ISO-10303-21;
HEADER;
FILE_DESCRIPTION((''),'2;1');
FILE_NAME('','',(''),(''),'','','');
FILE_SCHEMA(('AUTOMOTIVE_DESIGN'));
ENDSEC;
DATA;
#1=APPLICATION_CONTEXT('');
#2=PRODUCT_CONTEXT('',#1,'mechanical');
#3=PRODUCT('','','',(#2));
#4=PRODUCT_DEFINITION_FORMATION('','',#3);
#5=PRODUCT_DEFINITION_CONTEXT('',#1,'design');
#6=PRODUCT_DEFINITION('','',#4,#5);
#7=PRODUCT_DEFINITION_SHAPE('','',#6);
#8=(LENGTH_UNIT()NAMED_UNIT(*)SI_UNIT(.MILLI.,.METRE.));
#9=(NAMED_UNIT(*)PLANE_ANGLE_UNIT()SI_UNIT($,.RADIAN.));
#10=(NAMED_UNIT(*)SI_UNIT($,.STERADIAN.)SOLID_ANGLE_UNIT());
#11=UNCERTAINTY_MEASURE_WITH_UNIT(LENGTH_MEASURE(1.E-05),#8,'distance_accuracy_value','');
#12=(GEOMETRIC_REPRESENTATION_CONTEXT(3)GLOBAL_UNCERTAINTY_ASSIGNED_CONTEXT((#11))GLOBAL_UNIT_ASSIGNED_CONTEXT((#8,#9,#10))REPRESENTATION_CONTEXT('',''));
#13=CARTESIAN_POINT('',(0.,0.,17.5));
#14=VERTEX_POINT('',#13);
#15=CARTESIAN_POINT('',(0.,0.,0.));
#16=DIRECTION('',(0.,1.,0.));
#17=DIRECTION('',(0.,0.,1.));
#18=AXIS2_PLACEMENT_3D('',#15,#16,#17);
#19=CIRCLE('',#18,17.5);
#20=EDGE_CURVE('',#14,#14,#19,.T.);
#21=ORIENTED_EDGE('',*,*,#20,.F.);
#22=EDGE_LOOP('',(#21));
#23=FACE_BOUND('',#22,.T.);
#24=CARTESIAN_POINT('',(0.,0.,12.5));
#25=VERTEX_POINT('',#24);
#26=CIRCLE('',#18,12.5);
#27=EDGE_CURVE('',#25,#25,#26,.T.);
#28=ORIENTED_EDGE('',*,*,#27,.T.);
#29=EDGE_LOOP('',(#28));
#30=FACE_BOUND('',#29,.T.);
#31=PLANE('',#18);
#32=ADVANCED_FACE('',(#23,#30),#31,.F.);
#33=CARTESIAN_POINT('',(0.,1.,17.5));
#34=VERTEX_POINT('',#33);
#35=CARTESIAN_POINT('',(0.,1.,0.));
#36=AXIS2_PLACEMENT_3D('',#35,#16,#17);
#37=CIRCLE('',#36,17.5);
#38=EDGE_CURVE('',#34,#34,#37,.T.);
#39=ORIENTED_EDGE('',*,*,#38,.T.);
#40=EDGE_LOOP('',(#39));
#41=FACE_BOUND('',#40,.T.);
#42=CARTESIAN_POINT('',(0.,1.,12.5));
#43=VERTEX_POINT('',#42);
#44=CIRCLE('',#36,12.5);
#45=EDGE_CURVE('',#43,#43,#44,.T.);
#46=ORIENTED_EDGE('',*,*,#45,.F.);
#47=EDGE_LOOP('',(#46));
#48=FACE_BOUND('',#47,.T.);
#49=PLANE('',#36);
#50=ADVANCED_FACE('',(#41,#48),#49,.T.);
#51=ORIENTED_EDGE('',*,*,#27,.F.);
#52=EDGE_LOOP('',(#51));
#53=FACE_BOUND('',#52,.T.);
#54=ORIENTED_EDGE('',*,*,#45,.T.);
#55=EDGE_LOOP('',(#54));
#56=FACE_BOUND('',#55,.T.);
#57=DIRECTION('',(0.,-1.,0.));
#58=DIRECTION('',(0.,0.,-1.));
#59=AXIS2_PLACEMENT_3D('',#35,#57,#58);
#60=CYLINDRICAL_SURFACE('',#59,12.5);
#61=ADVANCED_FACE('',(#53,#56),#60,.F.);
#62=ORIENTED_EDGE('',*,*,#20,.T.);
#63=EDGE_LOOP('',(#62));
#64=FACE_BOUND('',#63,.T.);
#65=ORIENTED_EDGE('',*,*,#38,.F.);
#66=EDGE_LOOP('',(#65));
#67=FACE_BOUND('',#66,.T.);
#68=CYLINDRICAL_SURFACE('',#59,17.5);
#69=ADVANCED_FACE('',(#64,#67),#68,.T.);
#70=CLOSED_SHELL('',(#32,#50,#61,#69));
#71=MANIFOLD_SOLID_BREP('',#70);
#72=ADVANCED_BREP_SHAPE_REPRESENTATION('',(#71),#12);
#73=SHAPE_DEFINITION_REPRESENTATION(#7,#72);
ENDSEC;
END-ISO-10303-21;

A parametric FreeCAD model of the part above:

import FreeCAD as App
import Part
import Sketcher

V = App.Vector
Q = App.Units.Quantity

doc = App.newDocument("Part")
body = doc.addObject("PartDesign::Body", "Body")

# Sketch on XZ plane
sketch1 = body.newObject("Sketcher::SketchObject", "Sketch")
sketch1.AttachmentSupport = (doc.getObject("XZ_Plane"), [""])
sketch1.MapMode = "FlatFace"
sketch1.addGeometry([
    Part.Circle(V(0, 0, 0), V(0, 0, 1), 18),
    Part.Circle(V(0, 0, 0), V(0, 0, 1), 12),
], False)
sketch1.addConstraint([
    Sketcher.Constraint("Coincident", 0, 3, -1, 1),
    Sketcher.Constraint("Coincident", 1, 3, -1, 1),
    Sketcher.Constraint("Diameter", 0, Q("35 mm")),
    Sketcher.Constraint("Diameter", 1, Q("25 mm")),
])
pad1 = body.newObject("PartDesign::Pad", "Pad")
pad1.Profile = sketch1
pad1.Length = 1
pad1.Reversed = True

doc.recompute()
